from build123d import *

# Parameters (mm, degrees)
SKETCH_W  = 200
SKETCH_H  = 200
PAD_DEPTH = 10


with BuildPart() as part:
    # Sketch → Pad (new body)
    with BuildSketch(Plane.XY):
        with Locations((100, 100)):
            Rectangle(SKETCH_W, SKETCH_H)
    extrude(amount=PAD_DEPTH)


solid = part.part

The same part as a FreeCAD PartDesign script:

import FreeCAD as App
import Part
import Sketcher

V = App.Vector
Q = App.Units.Quantity

doc = App.newDocument("Part")
params = doc.addObject("Spreadsheet::Sheet", "Params")
for row, (alias, value) in enumerate([
    ("sketch1_width", "200 mm"),
    ("pad1_length", "10 mm"),
], start=1):
    params.set(f"A{row}", alias)
    params.set(f"B{row}", "=" + value)
    params.setAlias(f"B{row}", alias)

body = doc.addObject("PartDesign::Body", "Body")

# Sketch on XY plane
sketch1 = body.newObject("Sketcher::SketchObject", "Sketch")
sketch1.AttachmentSupport = (doc.getObject("XY_Plane"), [""])
sketch1.MapMode = "FlatFace"
sketch1.addGeometry([
    Part.LineSegment(V(0, 200, 0), V(0, 0, 0)),
    Part.LineSegment(V(0, 0, 0), V(200, 0, 0)),
    Part.LineSegment(V(200, 0, 0), V(200, 200, 0)),
    Part.LineSegment(V(200, 200, 0), V(0, 200, 0)),
], False)
sketch1.addConstraint([
    Sketcher.Constraint("Coincident", 0, 2, 1, 1),
    Sketcher.Constraint("Coincident", 1, 2, 2, 1),
    Sketcher.Constraint("Coincident", 2, 2, 3, 1),
    Sketcher.Constraint("Coincident", 3, 2, 0, 1),
    Sketcher.Constraint("Vertical", 0),
    Sketcher.Constraint("Horizontal", 1),
    Sketcher.Constraint("Vertical", 2),
    Sketcher.Constraint("Horizontal", 3),
    Sketcher.Constraint("Coincident", 0, 2, -1, 1),
    Sketcher.Constraint("Equal", 3, 0),
    Sketcher.Constraint("DistanceX", 1, 1, 1, 2, Q("200 mm")),
])
sketch1.setExpression("Constraints[10]", "Params.sketch1_width")
pad1 = body.newObject("PartDesign::Pad", "Pad")
pad1.Profile = sketch1
pad1.setExpression("Length", "Params.pad1_length")

doc.recompute()
